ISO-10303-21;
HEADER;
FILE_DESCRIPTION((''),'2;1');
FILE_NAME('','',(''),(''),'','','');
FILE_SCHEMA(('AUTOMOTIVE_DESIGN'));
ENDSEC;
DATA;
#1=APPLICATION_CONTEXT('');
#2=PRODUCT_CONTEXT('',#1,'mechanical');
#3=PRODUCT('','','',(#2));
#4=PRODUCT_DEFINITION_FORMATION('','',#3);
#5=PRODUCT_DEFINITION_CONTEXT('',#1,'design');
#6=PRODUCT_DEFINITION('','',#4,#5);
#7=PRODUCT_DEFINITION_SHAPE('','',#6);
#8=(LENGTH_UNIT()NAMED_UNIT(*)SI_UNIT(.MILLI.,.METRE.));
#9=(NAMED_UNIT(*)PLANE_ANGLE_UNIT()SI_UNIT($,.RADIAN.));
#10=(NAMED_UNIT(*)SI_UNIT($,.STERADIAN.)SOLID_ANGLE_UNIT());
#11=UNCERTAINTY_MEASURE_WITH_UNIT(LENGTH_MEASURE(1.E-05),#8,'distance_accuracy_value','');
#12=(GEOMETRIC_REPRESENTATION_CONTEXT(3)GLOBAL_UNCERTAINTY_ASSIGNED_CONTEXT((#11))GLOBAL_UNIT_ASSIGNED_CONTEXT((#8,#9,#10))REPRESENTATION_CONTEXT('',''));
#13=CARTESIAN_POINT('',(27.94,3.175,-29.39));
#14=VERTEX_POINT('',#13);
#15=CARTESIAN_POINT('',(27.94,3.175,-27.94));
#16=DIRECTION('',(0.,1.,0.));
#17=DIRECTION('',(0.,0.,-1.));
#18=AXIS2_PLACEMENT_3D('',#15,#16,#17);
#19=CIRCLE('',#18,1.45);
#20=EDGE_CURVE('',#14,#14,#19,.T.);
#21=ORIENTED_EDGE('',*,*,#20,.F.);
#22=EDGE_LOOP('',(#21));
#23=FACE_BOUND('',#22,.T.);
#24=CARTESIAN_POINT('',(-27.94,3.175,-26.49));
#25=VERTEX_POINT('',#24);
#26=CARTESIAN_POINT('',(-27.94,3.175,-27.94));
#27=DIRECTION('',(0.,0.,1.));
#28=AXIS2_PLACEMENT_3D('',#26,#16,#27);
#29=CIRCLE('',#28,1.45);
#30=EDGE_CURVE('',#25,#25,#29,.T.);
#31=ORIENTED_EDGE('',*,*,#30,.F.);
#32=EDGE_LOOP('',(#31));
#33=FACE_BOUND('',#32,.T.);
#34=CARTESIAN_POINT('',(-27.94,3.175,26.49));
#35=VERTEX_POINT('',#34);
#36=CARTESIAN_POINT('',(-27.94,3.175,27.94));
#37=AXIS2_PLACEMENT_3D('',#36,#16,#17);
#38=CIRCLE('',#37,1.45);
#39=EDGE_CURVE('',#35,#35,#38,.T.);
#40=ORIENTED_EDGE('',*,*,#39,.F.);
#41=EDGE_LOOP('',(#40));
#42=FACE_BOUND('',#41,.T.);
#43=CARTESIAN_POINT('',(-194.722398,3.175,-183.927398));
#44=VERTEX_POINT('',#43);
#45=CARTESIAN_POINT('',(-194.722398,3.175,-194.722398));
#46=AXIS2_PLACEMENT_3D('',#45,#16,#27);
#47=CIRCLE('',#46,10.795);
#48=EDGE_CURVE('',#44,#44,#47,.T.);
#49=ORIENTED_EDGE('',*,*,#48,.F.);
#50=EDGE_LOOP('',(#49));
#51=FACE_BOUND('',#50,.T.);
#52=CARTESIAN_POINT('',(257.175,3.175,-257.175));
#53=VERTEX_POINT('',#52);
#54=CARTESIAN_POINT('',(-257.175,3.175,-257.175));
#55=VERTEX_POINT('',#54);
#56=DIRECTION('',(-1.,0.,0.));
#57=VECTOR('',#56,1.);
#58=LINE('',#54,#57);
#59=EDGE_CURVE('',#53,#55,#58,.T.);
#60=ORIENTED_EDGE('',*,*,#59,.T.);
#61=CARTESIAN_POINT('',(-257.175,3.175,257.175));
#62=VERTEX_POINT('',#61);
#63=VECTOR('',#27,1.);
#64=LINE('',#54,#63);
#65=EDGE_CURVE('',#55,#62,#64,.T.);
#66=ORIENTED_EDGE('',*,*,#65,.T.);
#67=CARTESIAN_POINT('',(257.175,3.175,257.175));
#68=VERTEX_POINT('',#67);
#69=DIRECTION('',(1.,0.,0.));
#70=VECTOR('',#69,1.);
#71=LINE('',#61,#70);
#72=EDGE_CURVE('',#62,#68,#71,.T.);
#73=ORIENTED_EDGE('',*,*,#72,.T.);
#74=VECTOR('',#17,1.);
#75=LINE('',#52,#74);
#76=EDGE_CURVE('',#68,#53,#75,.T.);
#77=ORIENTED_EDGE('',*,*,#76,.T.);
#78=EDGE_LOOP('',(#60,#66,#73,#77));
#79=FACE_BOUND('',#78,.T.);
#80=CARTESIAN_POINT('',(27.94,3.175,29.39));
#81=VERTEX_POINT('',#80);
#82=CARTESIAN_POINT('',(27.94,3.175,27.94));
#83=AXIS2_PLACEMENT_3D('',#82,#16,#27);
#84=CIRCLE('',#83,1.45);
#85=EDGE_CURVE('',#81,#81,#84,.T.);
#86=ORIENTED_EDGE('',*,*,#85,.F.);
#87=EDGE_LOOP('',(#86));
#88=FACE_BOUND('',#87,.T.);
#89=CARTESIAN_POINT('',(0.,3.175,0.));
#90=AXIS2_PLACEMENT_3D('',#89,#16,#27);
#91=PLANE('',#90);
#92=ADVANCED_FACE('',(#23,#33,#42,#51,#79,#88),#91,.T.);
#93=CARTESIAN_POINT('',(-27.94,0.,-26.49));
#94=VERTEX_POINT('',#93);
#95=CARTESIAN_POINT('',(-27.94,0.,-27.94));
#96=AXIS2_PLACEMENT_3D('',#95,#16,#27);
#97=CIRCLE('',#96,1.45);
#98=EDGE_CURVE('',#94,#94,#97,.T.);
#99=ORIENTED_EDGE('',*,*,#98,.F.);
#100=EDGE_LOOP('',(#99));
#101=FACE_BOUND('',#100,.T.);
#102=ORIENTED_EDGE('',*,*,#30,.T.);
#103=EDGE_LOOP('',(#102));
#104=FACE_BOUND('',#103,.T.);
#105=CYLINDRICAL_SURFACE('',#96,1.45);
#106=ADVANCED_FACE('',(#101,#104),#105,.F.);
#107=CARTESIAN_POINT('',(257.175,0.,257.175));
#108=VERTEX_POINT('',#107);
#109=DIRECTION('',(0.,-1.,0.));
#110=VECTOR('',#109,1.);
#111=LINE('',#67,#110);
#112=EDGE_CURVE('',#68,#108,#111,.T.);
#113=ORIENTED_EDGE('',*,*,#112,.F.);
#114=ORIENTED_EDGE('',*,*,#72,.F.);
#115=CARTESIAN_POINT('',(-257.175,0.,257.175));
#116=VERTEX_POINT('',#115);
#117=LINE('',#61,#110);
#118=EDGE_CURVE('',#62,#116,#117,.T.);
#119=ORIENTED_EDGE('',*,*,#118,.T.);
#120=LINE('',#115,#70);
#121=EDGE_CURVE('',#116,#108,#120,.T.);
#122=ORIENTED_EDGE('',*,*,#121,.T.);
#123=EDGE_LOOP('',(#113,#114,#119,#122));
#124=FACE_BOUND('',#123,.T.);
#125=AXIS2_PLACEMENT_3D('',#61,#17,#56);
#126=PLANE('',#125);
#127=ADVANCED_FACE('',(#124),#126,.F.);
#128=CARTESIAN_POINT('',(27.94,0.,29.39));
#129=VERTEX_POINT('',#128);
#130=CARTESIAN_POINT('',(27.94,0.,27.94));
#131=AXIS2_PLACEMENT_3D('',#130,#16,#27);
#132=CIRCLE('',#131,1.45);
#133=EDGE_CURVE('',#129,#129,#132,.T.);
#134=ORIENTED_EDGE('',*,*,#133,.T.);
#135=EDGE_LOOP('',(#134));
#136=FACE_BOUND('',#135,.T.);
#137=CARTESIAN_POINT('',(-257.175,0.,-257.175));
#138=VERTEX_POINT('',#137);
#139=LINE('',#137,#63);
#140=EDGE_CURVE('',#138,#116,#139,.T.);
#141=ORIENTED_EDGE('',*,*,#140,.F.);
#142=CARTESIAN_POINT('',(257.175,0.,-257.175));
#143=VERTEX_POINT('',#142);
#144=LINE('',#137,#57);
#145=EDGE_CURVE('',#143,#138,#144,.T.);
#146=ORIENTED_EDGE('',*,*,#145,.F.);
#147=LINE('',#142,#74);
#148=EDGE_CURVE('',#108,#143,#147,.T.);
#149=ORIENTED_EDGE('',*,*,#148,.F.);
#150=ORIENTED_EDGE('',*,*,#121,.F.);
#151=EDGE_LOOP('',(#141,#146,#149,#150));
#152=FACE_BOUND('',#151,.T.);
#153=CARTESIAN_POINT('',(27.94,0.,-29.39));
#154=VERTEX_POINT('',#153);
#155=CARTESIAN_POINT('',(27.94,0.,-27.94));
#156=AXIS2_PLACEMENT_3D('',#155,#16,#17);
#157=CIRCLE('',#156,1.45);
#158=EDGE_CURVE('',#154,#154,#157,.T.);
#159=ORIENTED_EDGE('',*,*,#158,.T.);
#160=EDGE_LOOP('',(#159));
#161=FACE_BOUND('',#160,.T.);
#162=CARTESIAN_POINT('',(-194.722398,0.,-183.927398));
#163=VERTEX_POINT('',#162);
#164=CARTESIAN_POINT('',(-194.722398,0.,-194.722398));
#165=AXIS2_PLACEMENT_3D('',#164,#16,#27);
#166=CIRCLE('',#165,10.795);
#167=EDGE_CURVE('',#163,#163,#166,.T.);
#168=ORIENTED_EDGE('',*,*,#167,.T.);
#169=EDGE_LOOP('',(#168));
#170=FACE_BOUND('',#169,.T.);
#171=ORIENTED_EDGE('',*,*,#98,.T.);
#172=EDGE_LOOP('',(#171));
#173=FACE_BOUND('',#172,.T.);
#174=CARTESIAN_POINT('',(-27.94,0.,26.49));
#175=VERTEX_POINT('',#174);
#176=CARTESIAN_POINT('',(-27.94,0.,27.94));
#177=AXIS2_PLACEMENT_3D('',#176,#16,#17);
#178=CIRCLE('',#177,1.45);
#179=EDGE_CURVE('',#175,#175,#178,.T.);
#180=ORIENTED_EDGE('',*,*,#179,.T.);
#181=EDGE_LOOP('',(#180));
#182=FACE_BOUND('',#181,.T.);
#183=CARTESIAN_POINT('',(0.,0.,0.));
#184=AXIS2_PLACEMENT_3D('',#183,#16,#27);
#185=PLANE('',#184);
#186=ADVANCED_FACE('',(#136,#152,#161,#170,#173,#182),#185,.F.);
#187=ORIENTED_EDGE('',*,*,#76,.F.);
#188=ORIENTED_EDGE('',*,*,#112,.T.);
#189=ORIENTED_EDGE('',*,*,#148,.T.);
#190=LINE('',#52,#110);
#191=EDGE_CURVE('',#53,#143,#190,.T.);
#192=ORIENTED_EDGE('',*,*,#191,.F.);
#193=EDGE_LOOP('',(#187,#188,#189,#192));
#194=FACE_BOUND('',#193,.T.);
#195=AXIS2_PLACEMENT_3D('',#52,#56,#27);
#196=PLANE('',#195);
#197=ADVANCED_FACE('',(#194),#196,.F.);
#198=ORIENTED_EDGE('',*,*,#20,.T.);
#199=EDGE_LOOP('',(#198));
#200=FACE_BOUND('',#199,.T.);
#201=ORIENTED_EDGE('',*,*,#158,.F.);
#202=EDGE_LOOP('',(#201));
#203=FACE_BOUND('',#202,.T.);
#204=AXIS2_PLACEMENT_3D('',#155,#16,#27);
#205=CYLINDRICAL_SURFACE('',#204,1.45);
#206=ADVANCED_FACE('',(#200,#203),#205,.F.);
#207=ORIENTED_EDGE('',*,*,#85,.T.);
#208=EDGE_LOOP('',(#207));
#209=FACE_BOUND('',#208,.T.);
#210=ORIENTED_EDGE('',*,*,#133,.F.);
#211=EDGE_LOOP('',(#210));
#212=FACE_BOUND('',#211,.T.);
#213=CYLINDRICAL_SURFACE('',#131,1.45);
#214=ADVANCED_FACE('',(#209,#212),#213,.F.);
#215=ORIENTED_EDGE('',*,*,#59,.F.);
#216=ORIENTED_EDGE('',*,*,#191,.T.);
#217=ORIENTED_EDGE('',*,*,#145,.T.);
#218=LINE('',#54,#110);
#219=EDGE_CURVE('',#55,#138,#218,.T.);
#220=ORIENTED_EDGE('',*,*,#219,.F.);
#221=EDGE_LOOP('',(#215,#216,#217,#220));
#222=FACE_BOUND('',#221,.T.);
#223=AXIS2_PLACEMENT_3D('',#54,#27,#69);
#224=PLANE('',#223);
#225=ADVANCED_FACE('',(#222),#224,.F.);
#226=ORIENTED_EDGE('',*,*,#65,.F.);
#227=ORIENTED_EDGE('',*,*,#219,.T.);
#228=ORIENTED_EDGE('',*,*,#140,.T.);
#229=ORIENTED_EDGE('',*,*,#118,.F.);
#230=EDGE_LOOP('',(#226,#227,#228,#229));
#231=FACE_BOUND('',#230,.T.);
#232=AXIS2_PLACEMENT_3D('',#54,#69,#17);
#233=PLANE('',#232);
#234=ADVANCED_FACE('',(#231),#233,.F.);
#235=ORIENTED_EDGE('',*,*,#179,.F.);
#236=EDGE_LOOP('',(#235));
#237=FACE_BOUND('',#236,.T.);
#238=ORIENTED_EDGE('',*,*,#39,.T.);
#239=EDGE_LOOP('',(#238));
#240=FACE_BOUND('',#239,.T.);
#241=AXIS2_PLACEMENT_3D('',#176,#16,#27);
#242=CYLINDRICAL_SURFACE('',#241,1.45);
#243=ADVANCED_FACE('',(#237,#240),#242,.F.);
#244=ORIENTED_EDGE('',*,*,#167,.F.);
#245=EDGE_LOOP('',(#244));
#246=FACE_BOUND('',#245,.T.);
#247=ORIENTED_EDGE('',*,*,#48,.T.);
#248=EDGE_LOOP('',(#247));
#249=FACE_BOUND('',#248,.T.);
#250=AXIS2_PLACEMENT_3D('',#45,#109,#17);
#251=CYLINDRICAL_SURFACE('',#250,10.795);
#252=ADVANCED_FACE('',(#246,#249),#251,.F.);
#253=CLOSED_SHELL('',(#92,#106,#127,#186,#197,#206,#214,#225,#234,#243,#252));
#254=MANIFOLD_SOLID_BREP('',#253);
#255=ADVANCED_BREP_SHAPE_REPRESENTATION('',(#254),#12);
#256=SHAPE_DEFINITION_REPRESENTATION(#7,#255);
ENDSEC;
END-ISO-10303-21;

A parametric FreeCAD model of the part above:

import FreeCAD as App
import Part
import Sketcher
from FreeCAD import Vector
Q = App.Units.Quantity


def add_polygon(sketch, points):
    """Adds a closed chain of lines whose ends are joined by coincident constraints."""
    first, n = sketch.GeometryCount, len(points)
    for a, b in zip(points, points[1:] + points[:1]):
        sketch.addGeometry(Part.LineSegment(App.Vector(*a, 0), App.Vector(*b, 0)), False)
    for i in range(n):
        sketch.addConstraint(Sketcher.Constraint("Coincident", first + i, 2, first + (i + 1) % n, 1))

doc = App.newDocument("Part")
body = doc.addObject("PartDesign::Body", "Body")

# Sketch on XZ plane
sketch1 = body.newObject("Sketcher::SketchObject", "Sketch")
sketch1.AttachmentSupport = (doc.getObject("XZ_Plane"), [""])
sketch1.MapMode = "FlatFace"
add_polygon(sketch1, [(-257.175, -257.175), (-257.175, 257.175), (257.175, 257.175), (257.175, -257.175)])  # lines 0-3
sketch1.addGeometry(Part.Circle(Vector(-194.722398, -194.722398, 0), Vector(0, 0, 1), 10.795), False)  # 4
sketch1.addConstraint(Sketcher.Constraint("Vertical", 0))
sketch1.addConstraint(Sketcher.Constraint("Horizontal", 1))
sketch1.addConstraint(Sketcher.Constraint("Vertical", 2))
sketch1.addConstraint(Sketcher.Constraint("Horizontal", 3))
sketch1.addConstraint(Sketcher.Constraint("Symmetric", 0, 2, 2, 2, -1, 1))
sketch1.addConstraint(Sketcher.Constraint("Equal", 3, 0))
sketch1.addConstraint(Sketcher.Constraint("Diameter", 4, Q("0.85 in")))
sketch1.addConstraint(Sketcher.Constraint("DistanceX", 1, 1, 1, 2, Q("20.25 in")))
sketch1.addConstraint(Sketcher.Constraint("DistanceX", 4, 3, -1, 1, Q("194.722398 mm")))
sketch1.addConstraint(Sketcher.Constraint("DistanceY", 4, 3, -1, 1, Q("194.722398 mm")))
pad1 = body.newObject("PartDesign::Pad", "Pad")
pad1.Profile = sketch1
pad1.Length = Q("0.125 in")
pad1.Reversed = True

# Sketch on XZ plane
sketch2 = body.newObject("Sketcher::SketchObject", "Sketch001")
sketch2.AttachmentSupport = (doc.getObject("XZ_Plane"), [""])
sketch2.MapMode = "FlatFace"
sketch2.AttachmentOffset = App.Placement(Vector(0, 0, -0.125 * 25.4), App.Rotation())
sketch2.addGeometry(Part.Circle(Vector(-27.94, -27.94, 0), Vector(0, 0, 1), 1.45), False)
sketch2.addGeometry(Part.Circle(Vector(27.94, -27.94, 0), Vector(0, 0, 1), 1.45), False)
sketch2.addGeometry(Part.Circle(Vector(27.94, 27.94, 0), Vector(0, 0, 1), 1.45), False)
sketch2.addGeometry(Part.Circle(Vector(-27.94, 27.94, 0), Vector(0, 0, 1), 1.45), False)
sketch2.addConstraint(Sketcher.Constraint("Equal", 0, 1))
sketch2.addConstraint(Sketcher.Constraint("Equal", 1, 2))
sketch2.addConstraint(Sketcher.Constraint("Equal", 2, 3))
sketch2.addConstraint(Sketcher.Constraint("Symmetric", 0, 3, 2, 3, -1, 1))
sketch2.addConstraint(Sketcher.Constraint("Symmetric", 1, 3, 3, 3, -1, 1))
sketch2.addConstraint(Sketcher.Constraint("Symmetric", 0, 3, 1, 3, -2))
sketch2.addConstraint(Sketcher.Constraint("DistanceX", 0, 3, -1, 1, Q("1.1 in")))
sketch2.addConstraint(Sketcher.Constraint("DistanceY", 0, 3, -1, 1, Q("1.1 in")))
sketch2.addConstraint(Sketcher.Constraint("Diameter", 0, Q("2.9 mm")))
pocket1 = body.newObject("PartDesign::Pocket", "Pocket")
pocket1.Profile = sketch2
pocket1.Type = "ThroughAll"
pocket1.Reversed = True

doc.recompute()
